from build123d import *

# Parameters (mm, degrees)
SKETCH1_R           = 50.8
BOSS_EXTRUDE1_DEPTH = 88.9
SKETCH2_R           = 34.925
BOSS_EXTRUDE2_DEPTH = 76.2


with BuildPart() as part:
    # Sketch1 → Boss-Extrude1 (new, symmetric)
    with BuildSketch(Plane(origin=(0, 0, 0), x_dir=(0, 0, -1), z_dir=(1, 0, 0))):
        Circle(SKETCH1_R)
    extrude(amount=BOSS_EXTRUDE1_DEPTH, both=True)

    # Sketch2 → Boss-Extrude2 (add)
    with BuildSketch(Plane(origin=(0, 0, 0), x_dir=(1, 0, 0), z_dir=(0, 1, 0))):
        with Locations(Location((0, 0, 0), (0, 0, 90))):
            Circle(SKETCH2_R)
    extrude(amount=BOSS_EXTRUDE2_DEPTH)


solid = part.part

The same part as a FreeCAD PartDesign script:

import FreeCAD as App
import Part
import Sketcher

V = App.Vector
Q = App.Units.Quantity

doc = App.newDocument("Part")
body = doc.addObject("PartDesign::Body", "Body")

# Sketch on YZ plane
sketch1 = body.newObject("Sketcher::SketchObject", "Sketch")
sketch1.AttachmentSupport = (doc.getObject("YZ_Plane"), [""])
sketch1.MapMode = "FlatFace"
sketch1.addGeometry(Part.Circle(V(0, 0, 0), V(0, 0, 1), 50.8), False)
sketch1.addConstraint(Sketcher.Constraint("Coincident", 0, 3, -1, 1))
sketch1.addConstraint(Sketcher.Constraint("Diameter", 0, Q("4 in")))
pad1 = body.newObject("PartDesign::Pad", "Pad")
pad1.Profile = sketch1
pad1.Length = Q("7 in")
pad1.Midplane = True

# Sketch on XZ plane
sketch2 = body.newObject("Sketcher::SketchObject", "Sketch001")
sketch2.AttachmentSupport = (doc.getObject("XZ_Plane"), [""])
sketch2.MapMode = "FlatFace"
sketch2.addGeometry(Part.Circle(V(0, 0, 0), V(0, 0, 1), 34.925), False)
sketch2.addConstraint(Sketcher.Constraint("Coincident", 0, 3, -1, 1))
sketch2.addConstraint(Sketcher.Constraint("Diameter", 0, Q("2.75 in")))
pad2 = body.newObject("PartDesign::Pad", "Pad001")
pad2.Profile = sketch2
pad2.Length = Q("3 in")
pad2.Reversed = True

doc.recompute()
